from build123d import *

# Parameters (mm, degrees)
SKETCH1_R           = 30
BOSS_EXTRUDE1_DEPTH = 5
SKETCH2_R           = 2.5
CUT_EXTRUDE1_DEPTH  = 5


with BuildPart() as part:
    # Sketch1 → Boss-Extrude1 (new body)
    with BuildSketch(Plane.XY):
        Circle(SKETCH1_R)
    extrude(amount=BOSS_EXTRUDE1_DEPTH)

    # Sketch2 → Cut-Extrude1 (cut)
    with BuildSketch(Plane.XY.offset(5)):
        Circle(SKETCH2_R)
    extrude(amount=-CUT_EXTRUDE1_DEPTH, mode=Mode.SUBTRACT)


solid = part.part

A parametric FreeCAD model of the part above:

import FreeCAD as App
import Part
import Sketcher
from FreeCAD import Vector

doc = App.newDocument("Part")
body = doc.addObject("PartDesign::Body", "Body")

# Sketch on XY plane
sketch1 = doc.addObject("Sketcher::SketchObject", "Sketch")
body.addObject(sketch1)
sketch1.AttachmentSupport = (doc.XY_Plane, [""])
sketch1.MapMode = "FlatFace"
sketch1.addGeometry(Part.Circle(Vector(0, 0, 0), Vector(0, 0, 1), 30), False)
sketch1.addConstraint(Sketcher.Constraint("Coincident", 0, 3, -1, 1))
sketch1.addConstraint(Sketcher.Constraint("Diameter", 0, 60.0))
pad1 = doc.addObject("PartDesign::Pad", "Pad")
body.addObject(pad1)
pad1.Profile = sketch1
pad1.Length = 5

# Sketch on XY plane
sketch2 = doc.addObject("Sketcher::SketchObject", "Sketch001")
body.addObject(sketch2)
sketch2.AttachmentSupport = (doc.XY_Plane, [""])
sketch2.MapMode = "FlatFace"
sketch2.AttachmentOffset = App.Placement(Vector(0, 0, 5), App.Rotation())
sketch2.addGeometry(Part.Circle(Vector(0, 0, 0), Vector(0, 0, 1), 2.5), False)
sketch2.addConstraint(Sketcher.Constraint("Coincident", 0, 3, -1, 1))
sketch2.addConstraint(Sketcher.Constraint("Diameter", 0, 5.0))
pocket1 = doc.addObject("PartDesign::Pocket", "Pocket")
body.addObject(pocket1)
pocket1.Profile = sketch2
pocket1.Length = 5

doc.recompute()
